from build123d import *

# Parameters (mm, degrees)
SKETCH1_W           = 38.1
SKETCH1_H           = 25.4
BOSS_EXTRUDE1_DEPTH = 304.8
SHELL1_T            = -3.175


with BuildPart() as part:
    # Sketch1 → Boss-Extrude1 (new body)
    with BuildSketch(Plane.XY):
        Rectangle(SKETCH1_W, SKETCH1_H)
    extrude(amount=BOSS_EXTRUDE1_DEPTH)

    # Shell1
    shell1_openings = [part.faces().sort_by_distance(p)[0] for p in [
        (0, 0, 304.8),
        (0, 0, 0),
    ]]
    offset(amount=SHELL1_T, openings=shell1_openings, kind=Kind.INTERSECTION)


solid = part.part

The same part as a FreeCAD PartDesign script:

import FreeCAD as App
import Part
import Sketcher
Q = App.Units.Quantity


def faces_at(feature, points):
    """Names of the faces that lie closest to the given points."""
    faces = feature.Shape.Faces
    near = lambda p: min(range(len(faces)), key=lambda i: faces[i].distToShape(Part.Vertex(*p))[0])
    return sorted({f"Face{near(p) + 1}" for p in points})

doc = App.newDocument("Part")
body = doc.addObject("PartDesign::Body", "Body")

# Sketch on XY plane
sketch1 = doc.addObject("Sketcher::SketchObject", "Sketch")
body.addObject(sketch1)
sketch1.AttachmentSupport = (doc.XY_Plane, [""])
sketch1.MapMode = "FlatFace"
sketch1.addGeometry([
    Part.LineSegment(App.Vector(-19, 13, 0), App.Vector(-19, -13, 0)),
    Part.LineSegment(App.Vector(-19, -13, 0), App.Vector(19, -13, 0)),
    Part.LineSegment(App.Vector(19, -13, 0), App.Vector(19, 13, 0)),
    Part.LineSegment(App.Vector(19, 13, 0), App.Vector(-19, 13, 0)),
], False)
sketch1.addConstraint([
    Sketcher.Constraint("Coincident", 0, 2, 1, 1),
    Sketcher.Constraint("Coincident", 1, 2, 2, 1),
    Sketcher.Constraint("Coincident", 2, 2, 3, 1),
    Sketcher.Constraint("Coincident", 3, 2, 0, 1),
    Sketcher.Constraint("Vertical", 0),
    Sketcher.Constraint("Horizontal", 1),
    Sketcher.Constraint("Vertical", 2),
    Sketcher.Constraint("Horizontal", 3),
    Sketcher.Constraint("Symmetric", 0, 2, 2, 2, -1, 1),
    Sketcher.Constraint("DistanceY", 0, 2, 0, 1, Q("1 in")),
    Sketcher.Constraint("DistanceX", 1, 1, 1, 2, Q("1.5 in")),
])
pad1 = doc.addObject("PartDesign::Pad", "Pad")
body.addObject(pad1)
pad1.Profile = sketch1
pad1.Length = Q("12 in")
doc.recompute()

thickness = doc.addObject("PartDesign::Thickness", "Thickness")
body.addObject(thickness)
thickness.Base = (pad1, faces_at(pad1, [(0, 0, 304.8), (0, 0, 0)]))
thickness.Value = Q("0.125 in")
thickness.Reversed = True
thickness.Join = "Intersection"

doc.recompute()
